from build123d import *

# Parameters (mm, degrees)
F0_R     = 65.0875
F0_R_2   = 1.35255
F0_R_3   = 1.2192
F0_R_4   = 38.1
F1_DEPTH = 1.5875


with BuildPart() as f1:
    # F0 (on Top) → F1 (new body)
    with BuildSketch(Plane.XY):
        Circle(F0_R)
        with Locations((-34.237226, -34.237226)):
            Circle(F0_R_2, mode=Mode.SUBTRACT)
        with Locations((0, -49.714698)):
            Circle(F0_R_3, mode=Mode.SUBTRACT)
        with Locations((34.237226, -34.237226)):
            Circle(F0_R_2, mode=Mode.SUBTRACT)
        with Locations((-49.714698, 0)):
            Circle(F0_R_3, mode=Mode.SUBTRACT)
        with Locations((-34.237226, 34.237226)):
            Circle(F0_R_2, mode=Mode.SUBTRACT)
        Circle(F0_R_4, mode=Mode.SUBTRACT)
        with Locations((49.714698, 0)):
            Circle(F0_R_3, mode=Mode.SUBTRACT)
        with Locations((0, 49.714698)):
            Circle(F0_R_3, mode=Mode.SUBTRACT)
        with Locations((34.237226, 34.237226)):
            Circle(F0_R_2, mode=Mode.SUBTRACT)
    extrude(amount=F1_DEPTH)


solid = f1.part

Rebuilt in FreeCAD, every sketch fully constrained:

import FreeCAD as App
import Part
import Sketcher
from FreeCAD import Vector
Q = App.Units.Quantity

doc = App.newDocument("Part")
body = doc.addObject("PartDesign::Body", "Body")

# Sketch on XY plane
sketch1 = body.newObject("Sketcher::SketchObject", "Sketch")
sketch1.AttachmentSupport = (doc.getObject("XY_Plane"), [""])
sketch1.MapMode = "FlatFace"
sketch1.addGeometry(Part.Circle(Vector(0, 0, 0), Vector(0, 0, 1), 65.1), False)
sketch1.addGeometry(Part.Circle(Vector(-34.2, -34.2, 0), Vector(0, 0, 1), 1.4), False)
sketch1.addGeometry(Part.Circle(Vector(0, -49.7, 0), Vector(0, 0, 1), 1.2), False)
sketch1.addGeometry(Part.Circle(Vector(34.2, -34.2, 0), Vector(0, 0, 1), 1.4), False)
sketch1.addGeometry(Part.Circle(Vector(-49.7, 0, 0), Vector(0, 0, 1), 1.2), False)
sketch1.addGeometry(Part.Circle(Vector(-34.2, 34.2, 0), Vector(0, 0, 1), 1.4), False)
sketch1.addGeometry(Part.Circle(Vector(0, 0, 0), Vector(0, 0, 1), 38.1), False)
sketch1.addGeometry(Part.Circle(Vector(49.7, 0, 0), Vector(0, 0, 1), 1.2), False)
sketch1.addGeometry(Part.Circle(Vector(0, 49.7, 0), Vector(0, 0, 1), 1.2), False)
sketch1.addGeometry(Part.Circle(Vector(34.2, 34.2, 0), Vector(0, 0, 1), 1.4), False)
sketch1.addConstraint(Sketcher.Constraint("Coincident", 0, 3, -1, 1))
sketch1.addConstraint(Sketcher.Constraint("Coincident", 6, 3, -1, 1))
sketch1.addConstraint(Sketcher.Constraint("Equal", 1, 3))
sketch1.addConstraint(Sketcher.Constraint("Equal", 2, 4))
sketch1.addConstraint(Sketcher.Constraint("Equal", 3, 5))
sketch1.addConstraint(Sketcher.Constraint("Equal", 4, 7))
sketch1.addConstraint(Sketcher.Constraint("Equal", 7, 8))
sketch1.addConstraint(Sketcher.Constraint("Equal", 5, 9))
sketch1.addConstraint(Sketcher.Constraint("Symmetric", 3, 3, 5, 3, -1, 1))
sketch1.addConstraint(Sketcher.Constraint("Symmetric", 4, 3, 7, 3, -1, 1))
sketch1.addConstraint(Sketcher.Constraint("Symmetric", 2, 3, 8, 3, -1, 1))
sketch1.addConstraint(Sketcher.Constraint("Symmetric", 1, 3, 9, 3, -1, 1))
sketch1.addConstraint(Sketcher.Constraint("Symmetric", 1, 3, 3, 3, -2))
sketch1.addConstraint(Sketcher.Constraint("PointOnObject", 2, 3, -2))
sketch1.addConstraint(Sketcher.Constraint("PointOnObject", 4, 3, -1))
sketch1.addConstraint(Sketcher.Constraint("Diameter", 6, Q("3 in")))
sketch1.addConstraint(Sketcher.Constraint("Diameter", 0, Q("5.125 in")))
sketch1.addConstraint(Sketcher.Constraint("Diameter", 2, Q("0.096 in")))
sketch1.addConstraint(Sketcher.Constraint("Diameter", 1, Q("0.1065 in")))
sketch1.addConstraint(Sketcher.Constraint("DistanceY", 2, 3, 1, 3, Q("15.477472 mm")))
sketch1.addConstraint(Sketcher.Constraint("DistanceX", 1, 3, 3, 3, Q("68.474452 mm")))
sketch1.addConstraint(Sketcher.Constraint("DistanceX", 4, 3, 1, 3, Q("15.477472 mm")))
sketch1.addConstraint(Sketcher.Constraint("DistanceY", 1, 3, 5, 3, Q("68.474452 mm")))
pad1 = body.newObject("PartDesign::Pad", "Pad")
pad1.Profile = sketch1
pad1.Length = Q("0.0625 in")

doc.recompute()
